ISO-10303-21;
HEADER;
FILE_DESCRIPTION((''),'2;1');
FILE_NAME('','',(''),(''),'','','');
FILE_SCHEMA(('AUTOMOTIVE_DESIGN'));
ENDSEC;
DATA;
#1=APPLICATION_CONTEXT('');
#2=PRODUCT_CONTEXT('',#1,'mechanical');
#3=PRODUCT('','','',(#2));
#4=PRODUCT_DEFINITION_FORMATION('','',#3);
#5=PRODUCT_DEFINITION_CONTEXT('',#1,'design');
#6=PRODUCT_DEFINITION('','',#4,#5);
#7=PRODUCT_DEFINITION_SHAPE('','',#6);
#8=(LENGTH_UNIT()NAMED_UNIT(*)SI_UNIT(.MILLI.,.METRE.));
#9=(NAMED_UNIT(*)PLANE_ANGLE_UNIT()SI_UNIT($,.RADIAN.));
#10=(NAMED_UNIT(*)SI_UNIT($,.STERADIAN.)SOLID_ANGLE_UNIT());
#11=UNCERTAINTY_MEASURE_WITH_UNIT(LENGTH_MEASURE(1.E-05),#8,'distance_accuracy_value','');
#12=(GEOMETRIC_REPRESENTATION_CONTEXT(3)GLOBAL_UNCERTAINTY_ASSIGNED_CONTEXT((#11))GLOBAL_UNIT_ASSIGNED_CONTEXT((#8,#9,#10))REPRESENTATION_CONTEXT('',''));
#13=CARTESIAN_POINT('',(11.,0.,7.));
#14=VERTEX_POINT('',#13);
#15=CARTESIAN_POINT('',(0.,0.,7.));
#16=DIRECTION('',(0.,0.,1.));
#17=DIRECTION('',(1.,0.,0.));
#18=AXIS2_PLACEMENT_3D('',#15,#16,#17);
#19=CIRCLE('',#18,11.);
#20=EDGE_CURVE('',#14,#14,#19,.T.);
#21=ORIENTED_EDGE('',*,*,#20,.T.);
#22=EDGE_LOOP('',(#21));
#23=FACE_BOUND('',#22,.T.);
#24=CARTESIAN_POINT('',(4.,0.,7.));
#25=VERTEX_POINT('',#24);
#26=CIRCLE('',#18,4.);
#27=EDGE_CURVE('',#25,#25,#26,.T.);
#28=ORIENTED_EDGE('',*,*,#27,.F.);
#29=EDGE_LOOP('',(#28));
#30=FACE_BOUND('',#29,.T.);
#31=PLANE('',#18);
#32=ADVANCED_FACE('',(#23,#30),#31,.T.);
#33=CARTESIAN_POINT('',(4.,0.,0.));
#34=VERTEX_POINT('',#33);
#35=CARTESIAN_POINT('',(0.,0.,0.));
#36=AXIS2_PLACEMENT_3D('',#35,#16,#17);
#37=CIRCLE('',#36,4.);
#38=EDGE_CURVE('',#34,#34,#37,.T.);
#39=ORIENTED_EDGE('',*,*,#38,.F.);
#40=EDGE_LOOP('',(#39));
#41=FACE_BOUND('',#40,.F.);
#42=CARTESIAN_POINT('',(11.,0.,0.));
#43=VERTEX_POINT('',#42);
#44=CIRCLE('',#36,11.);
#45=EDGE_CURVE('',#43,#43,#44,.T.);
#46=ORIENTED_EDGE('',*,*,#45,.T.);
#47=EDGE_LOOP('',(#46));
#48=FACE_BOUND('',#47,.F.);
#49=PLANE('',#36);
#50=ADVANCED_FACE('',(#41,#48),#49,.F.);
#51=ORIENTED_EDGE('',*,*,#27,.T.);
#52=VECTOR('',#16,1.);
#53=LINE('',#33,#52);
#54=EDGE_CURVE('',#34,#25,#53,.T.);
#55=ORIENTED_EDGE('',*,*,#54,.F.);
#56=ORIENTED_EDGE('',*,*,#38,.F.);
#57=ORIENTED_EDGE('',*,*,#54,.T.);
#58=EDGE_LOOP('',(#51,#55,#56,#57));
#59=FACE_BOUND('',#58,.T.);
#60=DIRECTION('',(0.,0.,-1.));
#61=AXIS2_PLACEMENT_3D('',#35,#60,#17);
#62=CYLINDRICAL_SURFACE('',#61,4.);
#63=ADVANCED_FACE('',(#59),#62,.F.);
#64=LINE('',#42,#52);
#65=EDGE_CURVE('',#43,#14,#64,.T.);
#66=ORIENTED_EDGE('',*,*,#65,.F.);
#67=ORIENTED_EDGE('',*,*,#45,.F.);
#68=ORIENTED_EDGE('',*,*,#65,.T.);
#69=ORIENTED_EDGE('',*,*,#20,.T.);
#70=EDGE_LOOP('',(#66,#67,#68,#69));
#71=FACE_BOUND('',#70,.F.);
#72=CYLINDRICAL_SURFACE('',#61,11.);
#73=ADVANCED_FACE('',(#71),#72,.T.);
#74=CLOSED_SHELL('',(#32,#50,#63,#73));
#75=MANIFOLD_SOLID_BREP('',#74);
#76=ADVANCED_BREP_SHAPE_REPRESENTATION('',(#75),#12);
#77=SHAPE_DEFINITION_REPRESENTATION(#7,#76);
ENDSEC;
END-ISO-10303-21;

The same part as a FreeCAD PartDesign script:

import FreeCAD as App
import Part
import Sketcher

doc = App.newDocument("Part")
body = doc.addObject("PartDesign::Body", "Body")

# Sketch on XY plane
sketch1 = body.newObject("Sketcher::SketchObject", "Sketch")
sketch1.AttachmentSupport = (doc.getObject("XY_Plane"), [""])
sketch1.MapMode = "FlatFace"
sketch1.addGeometry(Part.Circle(App.Vector(0, 0, 0), App.Vector(0, 0, 1), 11), False)
sketch1.addGeometry(Part.Circle(App.Vector(0, 0, 0), App.Vector(0, 0, 1), 4), False)
sketch1.addConstraint(Sketcher.Constraint("Coincident", 0, 3, -1, 1))
sketch1.addConstraint(Sketcher.Constraint("Coincident", 1, 3, -1, 1))
sketch1.addConstraint(Sketcher.Constraint("Diameter", 0, 22.0))
sketch1.addConstraint(Sketcher.Constraint("Diameter", 1, 8.0))
pad1 = body.newObject("PartDesign::Pad", "Pad")
pad1.Profile = sketch1
pad1.Length = 7

doc.recompute()
